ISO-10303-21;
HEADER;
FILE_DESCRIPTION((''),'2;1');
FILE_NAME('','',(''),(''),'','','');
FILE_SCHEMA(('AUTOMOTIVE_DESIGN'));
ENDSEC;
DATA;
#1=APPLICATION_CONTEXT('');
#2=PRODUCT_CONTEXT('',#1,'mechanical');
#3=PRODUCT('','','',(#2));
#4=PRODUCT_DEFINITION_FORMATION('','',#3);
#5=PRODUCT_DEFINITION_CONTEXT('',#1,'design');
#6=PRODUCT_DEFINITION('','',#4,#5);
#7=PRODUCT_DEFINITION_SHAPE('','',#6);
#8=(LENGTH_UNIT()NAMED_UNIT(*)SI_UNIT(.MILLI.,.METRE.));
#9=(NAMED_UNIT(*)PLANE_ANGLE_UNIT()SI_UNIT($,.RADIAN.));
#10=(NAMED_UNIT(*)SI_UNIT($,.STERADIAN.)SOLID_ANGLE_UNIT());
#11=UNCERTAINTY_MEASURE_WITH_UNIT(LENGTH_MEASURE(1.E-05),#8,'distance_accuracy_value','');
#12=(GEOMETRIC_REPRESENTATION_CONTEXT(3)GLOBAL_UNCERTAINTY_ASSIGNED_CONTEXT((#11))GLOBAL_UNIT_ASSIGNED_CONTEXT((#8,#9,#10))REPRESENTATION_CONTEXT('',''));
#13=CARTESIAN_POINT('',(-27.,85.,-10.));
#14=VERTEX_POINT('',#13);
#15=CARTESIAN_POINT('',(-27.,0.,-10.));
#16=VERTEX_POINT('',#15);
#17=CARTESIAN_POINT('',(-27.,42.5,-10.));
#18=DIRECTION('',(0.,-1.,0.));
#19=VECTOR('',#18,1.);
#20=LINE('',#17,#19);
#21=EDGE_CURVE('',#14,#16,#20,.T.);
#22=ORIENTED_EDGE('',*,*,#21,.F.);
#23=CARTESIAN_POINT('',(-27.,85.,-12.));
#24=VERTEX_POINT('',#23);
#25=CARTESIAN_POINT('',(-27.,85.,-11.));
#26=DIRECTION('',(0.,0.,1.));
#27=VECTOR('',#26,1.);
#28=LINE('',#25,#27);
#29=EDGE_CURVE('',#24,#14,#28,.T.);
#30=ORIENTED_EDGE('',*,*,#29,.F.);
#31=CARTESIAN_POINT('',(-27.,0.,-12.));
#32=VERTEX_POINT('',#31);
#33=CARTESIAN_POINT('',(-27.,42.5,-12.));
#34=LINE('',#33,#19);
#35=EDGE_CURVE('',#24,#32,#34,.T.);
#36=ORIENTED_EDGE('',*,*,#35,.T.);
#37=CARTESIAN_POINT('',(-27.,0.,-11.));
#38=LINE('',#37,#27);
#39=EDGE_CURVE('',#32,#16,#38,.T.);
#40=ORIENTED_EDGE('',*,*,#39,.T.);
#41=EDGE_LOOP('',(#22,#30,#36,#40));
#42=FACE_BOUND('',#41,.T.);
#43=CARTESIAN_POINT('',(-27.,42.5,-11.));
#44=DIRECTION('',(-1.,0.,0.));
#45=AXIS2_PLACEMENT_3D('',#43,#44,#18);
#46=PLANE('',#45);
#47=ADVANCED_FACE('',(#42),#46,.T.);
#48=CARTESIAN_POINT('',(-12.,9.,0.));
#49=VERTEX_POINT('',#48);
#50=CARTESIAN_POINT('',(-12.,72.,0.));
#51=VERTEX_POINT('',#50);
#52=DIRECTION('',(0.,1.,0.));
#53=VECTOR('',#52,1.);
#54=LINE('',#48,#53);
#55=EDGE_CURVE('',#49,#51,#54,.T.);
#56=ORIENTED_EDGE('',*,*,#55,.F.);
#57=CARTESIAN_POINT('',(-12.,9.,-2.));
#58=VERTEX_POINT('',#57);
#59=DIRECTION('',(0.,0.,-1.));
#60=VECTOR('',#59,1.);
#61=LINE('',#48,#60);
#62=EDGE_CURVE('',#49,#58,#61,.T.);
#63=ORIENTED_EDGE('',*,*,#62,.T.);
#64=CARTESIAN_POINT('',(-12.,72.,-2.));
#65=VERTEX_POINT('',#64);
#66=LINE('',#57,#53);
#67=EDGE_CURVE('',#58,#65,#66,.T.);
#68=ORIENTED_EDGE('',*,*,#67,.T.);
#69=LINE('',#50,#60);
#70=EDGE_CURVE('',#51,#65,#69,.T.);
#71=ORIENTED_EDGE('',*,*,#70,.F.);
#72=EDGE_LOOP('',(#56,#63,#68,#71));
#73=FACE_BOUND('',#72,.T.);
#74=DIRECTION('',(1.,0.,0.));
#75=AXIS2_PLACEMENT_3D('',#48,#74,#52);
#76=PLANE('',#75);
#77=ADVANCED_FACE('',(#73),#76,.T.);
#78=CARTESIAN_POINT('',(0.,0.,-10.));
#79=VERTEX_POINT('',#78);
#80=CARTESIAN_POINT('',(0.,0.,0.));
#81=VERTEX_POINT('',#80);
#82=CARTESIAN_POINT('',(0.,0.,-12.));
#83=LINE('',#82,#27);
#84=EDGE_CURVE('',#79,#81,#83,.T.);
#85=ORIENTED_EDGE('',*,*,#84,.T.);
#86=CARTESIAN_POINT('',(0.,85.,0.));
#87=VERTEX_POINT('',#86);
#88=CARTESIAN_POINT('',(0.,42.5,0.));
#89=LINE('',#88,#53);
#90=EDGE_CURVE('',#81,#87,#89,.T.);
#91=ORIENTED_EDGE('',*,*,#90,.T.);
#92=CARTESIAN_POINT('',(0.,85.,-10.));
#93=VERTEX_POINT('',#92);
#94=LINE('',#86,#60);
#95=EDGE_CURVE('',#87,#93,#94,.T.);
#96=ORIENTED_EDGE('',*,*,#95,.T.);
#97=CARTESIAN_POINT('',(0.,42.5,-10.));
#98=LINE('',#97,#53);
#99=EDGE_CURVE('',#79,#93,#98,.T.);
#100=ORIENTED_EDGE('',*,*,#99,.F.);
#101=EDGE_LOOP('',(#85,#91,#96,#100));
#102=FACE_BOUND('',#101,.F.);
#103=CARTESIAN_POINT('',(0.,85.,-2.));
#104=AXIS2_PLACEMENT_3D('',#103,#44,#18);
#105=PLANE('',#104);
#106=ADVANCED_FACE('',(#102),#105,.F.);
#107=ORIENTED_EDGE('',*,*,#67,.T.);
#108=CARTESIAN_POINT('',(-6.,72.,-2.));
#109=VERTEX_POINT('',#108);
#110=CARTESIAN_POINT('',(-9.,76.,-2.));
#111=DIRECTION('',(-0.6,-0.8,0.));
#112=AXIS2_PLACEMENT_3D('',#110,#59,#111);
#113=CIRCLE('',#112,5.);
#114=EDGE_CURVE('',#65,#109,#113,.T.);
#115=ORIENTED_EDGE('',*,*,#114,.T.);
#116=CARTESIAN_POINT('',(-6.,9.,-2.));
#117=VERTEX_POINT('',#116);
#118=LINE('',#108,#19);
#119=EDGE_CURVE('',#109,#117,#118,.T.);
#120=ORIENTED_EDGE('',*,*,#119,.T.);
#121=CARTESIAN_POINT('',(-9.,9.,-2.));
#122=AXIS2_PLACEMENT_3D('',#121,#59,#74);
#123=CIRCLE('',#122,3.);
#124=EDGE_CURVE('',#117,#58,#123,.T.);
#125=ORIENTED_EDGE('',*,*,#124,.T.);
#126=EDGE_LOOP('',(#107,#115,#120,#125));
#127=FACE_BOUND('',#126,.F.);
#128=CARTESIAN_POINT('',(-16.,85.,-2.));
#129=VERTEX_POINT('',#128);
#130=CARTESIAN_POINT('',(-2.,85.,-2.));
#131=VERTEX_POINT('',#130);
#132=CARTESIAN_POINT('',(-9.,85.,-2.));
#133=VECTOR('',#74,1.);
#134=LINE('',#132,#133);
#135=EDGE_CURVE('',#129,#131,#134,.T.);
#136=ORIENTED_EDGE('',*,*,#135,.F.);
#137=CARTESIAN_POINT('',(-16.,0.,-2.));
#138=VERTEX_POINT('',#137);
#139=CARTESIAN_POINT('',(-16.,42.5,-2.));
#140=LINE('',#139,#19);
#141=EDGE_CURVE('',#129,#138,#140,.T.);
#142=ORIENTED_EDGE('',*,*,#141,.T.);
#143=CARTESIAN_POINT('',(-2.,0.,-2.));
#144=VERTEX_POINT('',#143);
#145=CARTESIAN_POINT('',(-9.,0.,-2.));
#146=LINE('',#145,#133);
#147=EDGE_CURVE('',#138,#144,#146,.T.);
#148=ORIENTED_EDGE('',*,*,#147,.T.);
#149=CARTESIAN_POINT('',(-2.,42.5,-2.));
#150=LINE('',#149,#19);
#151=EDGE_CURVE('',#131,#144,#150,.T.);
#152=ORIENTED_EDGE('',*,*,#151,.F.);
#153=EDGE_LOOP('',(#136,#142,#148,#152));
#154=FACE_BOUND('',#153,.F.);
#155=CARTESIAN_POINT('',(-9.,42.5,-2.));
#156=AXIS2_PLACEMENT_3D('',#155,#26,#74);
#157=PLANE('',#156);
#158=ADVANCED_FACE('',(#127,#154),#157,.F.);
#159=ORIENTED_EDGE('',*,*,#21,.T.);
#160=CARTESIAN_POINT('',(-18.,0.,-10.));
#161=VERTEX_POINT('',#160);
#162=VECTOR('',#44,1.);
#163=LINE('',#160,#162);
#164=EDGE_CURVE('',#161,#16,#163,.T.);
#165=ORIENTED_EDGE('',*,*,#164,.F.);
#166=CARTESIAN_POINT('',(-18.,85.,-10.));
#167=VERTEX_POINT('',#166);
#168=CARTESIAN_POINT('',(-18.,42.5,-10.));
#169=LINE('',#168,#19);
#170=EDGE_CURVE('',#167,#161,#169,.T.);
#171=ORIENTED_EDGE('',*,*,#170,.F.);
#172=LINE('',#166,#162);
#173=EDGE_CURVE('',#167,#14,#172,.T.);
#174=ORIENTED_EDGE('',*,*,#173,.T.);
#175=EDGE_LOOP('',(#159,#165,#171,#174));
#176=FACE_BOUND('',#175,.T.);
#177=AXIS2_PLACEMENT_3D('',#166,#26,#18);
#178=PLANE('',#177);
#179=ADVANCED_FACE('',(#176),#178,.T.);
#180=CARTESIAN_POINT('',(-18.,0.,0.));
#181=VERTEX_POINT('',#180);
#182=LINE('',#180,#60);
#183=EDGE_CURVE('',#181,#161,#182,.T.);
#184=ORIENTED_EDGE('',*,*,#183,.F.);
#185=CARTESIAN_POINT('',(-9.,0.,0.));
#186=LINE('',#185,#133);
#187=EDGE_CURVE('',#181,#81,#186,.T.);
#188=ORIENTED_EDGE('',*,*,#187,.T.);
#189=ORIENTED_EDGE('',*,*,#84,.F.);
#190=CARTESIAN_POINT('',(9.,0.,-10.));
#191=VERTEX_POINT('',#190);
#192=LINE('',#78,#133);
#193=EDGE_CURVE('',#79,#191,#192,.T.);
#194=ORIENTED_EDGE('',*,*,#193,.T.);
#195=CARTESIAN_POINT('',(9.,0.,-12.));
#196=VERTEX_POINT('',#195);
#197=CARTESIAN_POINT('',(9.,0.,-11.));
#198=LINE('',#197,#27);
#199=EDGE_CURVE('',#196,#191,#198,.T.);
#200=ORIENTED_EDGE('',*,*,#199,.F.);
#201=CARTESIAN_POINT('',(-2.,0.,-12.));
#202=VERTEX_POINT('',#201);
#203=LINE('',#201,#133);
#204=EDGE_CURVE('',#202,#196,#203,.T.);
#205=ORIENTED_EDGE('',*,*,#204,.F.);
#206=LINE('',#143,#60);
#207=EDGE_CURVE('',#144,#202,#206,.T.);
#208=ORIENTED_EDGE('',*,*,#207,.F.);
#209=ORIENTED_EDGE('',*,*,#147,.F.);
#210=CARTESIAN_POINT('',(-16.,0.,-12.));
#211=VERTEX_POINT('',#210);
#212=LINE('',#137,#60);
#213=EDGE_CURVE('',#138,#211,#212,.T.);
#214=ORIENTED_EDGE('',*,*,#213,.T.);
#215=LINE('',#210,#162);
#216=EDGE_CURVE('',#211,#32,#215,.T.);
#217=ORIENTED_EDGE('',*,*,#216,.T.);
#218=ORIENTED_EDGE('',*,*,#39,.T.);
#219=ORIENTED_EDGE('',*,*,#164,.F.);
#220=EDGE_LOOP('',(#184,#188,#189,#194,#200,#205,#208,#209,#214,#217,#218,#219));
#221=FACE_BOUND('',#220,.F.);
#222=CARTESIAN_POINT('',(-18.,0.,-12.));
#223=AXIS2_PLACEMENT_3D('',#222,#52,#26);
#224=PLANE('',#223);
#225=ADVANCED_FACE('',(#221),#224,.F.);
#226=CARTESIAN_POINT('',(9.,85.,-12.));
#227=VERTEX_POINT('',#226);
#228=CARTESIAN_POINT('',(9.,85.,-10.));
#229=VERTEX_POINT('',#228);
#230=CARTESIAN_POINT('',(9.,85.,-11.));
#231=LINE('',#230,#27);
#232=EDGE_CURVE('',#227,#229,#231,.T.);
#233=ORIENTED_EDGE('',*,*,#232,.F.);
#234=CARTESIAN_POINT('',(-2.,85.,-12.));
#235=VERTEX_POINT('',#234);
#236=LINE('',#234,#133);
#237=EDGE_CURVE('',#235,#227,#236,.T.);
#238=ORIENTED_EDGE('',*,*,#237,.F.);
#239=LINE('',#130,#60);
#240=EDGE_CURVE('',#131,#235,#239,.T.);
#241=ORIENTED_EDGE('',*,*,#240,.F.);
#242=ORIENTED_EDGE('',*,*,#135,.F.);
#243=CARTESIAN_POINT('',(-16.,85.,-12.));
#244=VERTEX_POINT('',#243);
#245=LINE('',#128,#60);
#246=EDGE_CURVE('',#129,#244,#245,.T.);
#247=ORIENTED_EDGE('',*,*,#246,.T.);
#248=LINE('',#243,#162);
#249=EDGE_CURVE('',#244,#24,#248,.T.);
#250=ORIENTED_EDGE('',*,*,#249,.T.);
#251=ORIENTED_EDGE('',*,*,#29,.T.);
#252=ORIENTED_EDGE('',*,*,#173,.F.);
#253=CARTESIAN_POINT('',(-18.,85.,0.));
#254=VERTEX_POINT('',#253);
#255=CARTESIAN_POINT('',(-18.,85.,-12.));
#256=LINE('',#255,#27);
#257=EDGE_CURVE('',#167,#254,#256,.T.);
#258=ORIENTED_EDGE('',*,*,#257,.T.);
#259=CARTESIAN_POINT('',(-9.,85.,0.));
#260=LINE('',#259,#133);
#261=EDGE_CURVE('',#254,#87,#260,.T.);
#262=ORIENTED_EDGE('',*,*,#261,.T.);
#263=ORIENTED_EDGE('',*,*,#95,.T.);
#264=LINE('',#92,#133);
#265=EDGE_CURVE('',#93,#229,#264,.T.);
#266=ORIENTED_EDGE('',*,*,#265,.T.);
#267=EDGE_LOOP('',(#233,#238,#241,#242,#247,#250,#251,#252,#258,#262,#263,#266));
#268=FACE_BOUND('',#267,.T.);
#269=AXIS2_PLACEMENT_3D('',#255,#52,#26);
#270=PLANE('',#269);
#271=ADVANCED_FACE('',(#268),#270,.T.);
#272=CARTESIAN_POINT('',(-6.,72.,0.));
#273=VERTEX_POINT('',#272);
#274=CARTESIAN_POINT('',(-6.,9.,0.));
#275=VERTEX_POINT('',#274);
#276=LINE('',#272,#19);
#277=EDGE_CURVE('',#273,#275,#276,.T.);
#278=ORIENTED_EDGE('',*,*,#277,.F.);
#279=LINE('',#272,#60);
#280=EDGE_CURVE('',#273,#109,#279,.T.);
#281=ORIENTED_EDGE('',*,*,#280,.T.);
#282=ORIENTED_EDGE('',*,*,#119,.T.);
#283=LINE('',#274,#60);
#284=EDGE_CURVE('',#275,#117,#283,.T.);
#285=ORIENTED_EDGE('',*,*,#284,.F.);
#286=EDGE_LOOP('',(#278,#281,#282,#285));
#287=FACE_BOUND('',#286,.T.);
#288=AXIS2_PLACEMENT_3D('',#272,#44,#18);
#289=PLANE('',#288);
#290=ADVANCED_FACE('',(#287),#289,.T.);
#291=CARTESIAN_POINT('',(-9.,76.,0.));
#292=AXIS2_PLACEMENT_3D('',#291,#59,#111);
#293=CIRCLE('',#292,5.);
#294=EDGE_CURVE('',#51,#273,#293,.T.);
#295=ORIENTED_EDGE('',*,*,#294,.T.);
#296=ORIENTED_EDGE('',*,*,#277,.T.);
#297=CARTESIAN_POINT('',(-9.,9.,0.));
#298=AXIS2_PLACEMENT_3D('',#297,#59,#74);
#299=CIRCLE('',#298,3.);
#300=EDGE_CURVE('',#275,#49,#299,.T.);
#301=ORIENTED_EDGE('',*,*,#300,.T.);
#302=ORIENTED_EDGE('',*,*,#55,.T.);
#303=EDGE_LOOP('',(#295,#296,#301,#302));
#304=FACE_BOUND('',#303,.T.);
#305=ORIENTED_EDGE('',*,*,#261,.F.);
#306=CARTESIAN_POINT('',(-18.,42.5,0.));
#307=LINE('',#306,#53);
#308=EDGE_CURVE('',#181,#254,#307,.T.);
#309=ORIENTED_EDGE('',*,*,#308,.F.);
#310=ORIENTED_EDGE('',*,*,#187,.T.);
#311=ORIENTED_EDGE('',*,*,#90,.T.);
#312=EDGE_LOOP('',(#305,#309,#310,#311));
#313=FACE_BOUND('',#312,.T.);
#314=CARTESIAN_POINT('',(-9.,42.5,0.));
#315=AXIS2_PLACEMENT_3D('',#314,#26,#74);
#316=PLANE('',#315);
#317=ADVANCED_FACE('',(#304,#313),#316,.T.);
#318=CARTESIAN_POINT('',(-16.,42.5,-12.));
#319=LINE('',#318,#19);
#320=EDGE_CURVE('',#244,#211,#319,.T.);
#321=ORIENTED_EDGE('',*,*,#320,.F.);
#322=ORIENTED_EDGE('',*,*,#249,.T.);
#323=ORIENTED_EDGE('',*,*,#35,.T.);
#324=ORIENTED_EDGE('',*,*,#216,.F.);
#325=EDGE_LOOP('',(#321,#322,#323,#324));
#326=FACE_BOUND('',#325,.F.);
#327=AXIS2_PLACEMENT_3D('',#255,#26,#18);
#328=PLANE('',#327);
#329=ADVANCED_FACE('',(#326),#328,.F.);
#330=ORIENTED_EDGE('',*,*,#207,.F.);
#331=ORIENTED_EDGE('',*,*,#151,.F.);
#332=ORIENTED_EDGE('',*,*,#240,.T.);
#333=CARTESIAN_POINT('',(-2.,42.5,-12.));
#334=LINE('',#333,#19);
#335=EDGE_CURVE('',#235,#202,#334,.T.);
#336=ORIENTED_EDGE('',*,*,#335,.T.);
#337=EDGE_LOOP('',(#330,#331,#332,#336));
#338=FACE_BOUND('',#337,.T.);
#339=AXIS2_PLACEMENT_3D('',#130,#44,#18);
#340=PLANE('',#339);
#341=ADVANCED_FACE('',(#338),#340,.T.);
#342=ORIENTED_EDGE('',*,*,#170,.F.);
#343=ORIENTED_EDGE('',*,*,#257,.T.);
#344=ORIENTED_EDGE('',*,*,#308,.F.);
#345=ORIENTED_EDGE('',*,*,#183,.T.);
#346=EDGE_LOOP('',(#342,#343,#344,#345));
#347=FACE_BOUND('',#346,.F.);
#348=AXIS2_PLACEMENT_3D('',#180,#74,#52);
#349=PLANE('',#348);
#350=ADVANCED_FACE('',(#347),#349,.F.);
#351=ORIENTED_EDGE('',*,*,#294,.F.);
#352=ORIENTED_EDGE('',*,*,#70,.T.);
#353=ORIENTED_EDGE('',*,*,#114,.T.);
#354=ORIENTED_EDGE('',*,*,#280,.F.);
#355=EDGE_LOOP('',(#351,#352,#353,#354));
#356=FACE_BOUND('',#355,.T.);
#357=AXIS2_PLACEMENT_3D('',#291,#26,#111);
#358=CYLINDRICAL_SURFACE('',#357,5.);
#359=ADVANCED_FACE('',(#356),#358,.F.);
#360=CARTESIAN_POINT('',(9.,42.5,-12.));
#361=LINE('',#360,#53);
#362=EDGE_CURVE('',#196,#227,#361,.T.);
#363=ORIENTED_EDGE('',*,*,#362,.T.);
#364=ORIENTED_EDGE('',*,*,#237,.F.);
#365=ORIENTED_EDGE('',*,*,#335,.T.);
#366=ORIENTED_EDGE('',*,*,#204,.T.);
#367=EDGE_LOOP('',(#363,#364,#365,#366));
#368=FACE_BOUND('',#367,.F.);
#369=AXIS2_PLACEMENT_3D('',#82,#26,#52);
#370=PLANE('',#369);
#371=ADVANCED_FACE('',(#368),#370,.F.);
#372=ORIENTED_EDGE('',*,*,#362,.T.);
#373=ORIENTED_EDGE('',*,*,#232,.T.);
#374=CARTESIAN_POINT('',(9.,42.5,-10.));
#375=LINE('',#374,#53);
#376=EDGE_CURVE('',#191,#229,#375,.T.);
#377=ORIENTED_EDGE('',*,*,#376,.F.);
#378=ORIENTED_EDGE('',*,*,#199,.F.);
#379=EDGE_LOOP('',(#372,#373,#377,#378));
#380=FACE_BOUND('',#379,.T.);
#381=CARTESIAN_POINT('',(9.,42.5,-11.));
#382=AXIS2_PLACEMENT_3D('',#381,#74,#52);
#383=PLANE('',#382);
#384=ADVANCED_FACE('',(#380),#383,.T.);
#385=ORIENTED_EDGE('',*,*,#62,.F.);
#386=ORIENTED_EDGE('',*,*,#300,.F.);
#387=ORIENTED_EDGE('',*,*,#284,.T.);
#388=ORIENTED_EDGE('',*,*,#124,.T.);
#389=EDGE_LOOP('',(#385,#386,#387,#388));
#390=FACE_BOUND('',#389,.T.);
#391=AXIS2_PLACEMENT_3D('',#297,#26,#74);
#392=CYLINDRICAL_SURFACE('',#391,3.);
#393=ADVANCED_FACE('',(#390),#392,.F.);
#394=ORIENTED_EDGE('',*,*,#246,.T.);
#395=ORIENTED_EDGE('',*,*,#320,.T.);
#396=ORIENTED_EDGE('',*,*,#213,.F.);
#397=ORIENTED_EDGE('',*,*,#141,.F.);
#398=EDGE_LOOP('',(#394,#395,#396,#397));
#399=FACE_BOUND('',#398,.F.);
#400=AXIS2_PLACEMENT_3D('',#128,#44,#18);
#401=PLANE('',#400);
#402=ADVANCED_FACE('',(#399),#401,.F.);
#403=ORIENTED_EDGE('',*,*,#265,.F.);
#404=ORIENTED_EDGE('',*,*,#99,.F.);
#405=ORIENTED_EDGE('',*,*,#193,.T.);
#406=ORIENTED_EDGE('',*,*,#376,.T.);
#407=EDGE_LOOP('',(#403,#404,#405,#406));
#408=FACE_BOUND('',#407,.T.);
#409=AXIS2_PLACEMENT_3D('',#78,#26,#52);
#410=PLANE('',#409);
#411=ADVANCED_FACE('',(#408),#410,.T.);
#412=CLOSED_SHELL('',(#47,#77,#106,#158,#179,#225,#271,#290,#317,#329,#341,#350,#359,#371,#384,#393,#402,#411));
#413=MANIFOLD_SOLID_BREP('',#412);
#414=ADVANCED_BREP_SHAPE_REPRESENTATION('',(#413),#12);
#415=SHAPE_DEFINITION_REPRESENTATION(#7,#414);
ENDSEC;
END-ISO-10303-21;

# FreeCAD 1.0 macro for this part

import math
import FreeCAD as App
import Part
import Sketcher

V = App.Vector
Q = App.Units.Quantity

doc = App.newDocument("Part")
body = doc.addObject("PartDesign::Body", "Body")

# Sketch on XY plane
sketch1 = body.newObject("Sketcher::SketchObject", "Sketch")
sketch1.AttachmentSupport = (doc.getObject("XY_Plane"), [""])
sketch1.MapMode = "FlatFace"
sketch1.addGeometry([
    Part.LineSegment(V(-18, 85, 0), V(-18, 0, 0)),  # 0
    Part.LineSegment(V(-18, 0, 0), V(0, 0, 0)),  # 1
    Part.LineSegment(V(0, 0, 0), V(0, 85, 0)),  # 2
    Part.LineSegment(V(0, 85, 0), V(-18, 85, 0)),  # 3
    Part.LineSegment(V(-12, 9, 0), V(-12, 72, 0)),  # 4
    Part.ArcOfCircle(Part.Circle(V(-9, 76, 0), V(0, 0, 1), 5), math.radians(-53), math.radians(233)),  # 5
    Part.LineSegment(V(-6, 72, 0), V(-6, 9, 0)),  # 6
    Part.ArcOfCircle(Part.Circle(V(-9, 9, 0), V(0, 0, 1), 3), math.radians(180), math.radians(360)),  # 7
], False)
sketch1.addConstraint([
    Sketcher.Constraint("Coincident", 0, 2, 1, 1),
    Sketcher.Constraint("Coincident", 1, 2, 2, 1),
    Sketcher.Constraint("Coincident", 2, 2, 3, 1),
    Sketcher.Constraint("Coincident", 3, 2, 0, 1),
    Sketcher.Constraint("Coincident", 4, 2, 5, 2),
    Sketcher.Constraint("Coincident", 5, 1, 6, 1),
    Sketcher.Constraint("Tangent", 6, 2, 7, 2),
    Sketcher.Constraint("Tangent", 7, 1, 4, 1),
    Sketcher.Constraint("Vertical", 0),
    Sketcher.Constraint("Horizontal", 1),
    Sketcher.Constraint("Vertical", 2),
    Sketcher.Constraint("Horizontal", 3),
    Sketcher.Constraint("Vertical", 4),
    Sketcher.Constraint("Vertical", 6),
    Sketcher.Constraint("Coincident", 1, 2, -1, 1),
    Sketcher.Constraint("Horizontal", 4, 2, 5, 1),
    Sketcher.Constraint("Radius", 5, Q("5 mm")),
    Sketcher.Constraint("Radius", 7, Q("3 mm")),
    Sketcher.Constraint("DistanceX", 1, 1, 1, 2, Q("18 mm")),
    Sketcher.Constraint("DistanceY", 0, 2, 0, 1, Q("85 mm")),
    Sketcher.Constraint("DistanceY", 4, 1, 4, 2, Q("63 mm")),
    Sketcher.Constraint("DistanceX", 5, 3, -1, 1, Q("9 mm")),
    Sketcher.Constraint("DistanceY", -1, 1, 5, 3, Q("76 mm")),
])
pad1 = body.newObject("PartDesign::Pad", "Pad")
pad1.Profile = sketch1
pad1.Length = 2
pad1.Reversed = True

# Sketch on XY plane
sketch2 = body.newObject("Sketcher::SketchObject", "Sketch001")
sketch2.AttachmentSupport = (doc.getObject("XY_Plane"), [""])
sketch2.MapMode = "FlatFace"
sketch2.AttachmentOffset = App.Placement(V(0, 0, -2), App.Rotation())
sketch2.addGeometry([
    Part.LineSegment(V(-2, 0, 0), V(-2, 85, 0)),  # 0
    Part.LineSegment(V(-2, 85, 0), V(0, 85, 0)),  # 1
    Part.LineSegment(V(0, 85, 0), V(0, 0, 0)),  # 2
    Part.LineSegment(V(0, 0, 0), V(-2, 0, 0)),  # 3
    Part.LineSegment(V(-18, 0, 0), V(-18, 85, 0)),  # 4
    Part.LineSegment(V(-18, 85, 0), V(-16, 85, 0)),  # 5
    Part.LineSegment(V(-16, 85, 0), V(-16, 0, 0)),  # 6
    Part.LineSegment(V(-16, 0, 0), V(-18, 0, 0)),  # 7
], False)
sketch2.addConstraint([
    Sketcher.Constraint("Coincident", 0, 2, 1, 1),
    Sketcher.Constraint("Coincident", 1, 2, 2, 1),
    Sketcher.Constraint("Coincident", 2, 2, 3, 1),
    Sketcher.Constraint("Coincident", 3, 2, 0, 1),
    Sketcher.Constraint("Coincident", 4, 2, 5, 1),
    Sketcher.Constraint("Coincident", 5, 2, 6, 1),
    Sketcher.Constraint("Coincident", 6, 2, 7, 1),
    Sketcher.Constraint("Coincident", 7, 2, 4, 1),
    Sketcher.Constraint("Vertical", 0),
    Sketcher.Constraint("Horizontal", 1),
    Sketcher.Constraint("Vertical", 2),
    Sketcher.Constraint("Horizontal", 3),
    Sketcher.Constraint("Vertical", 4),
    Sketcher.Constraint("Horizontal", 5),
    Sketcher.Constraint("Vertical", 6),
    Sketcher.Constraint("Horizontal", 7),
    Sketcher.Constraint("Coincident", 2, 2, -1, 1),
    Sketcher.Constraint("PointOnObject", 6, 2, -1),
    Sketcher.Constraint("Horizontal", 1, 2, 4, 2),
    Sketcher.Constraint("Equal", 3, 5),
    Sketcher.Constraint("DistanceX", 1, 1, 1, 2, Q("2 mm")),
    Sketcher.Constraint("DistanceY", 0, 1, 0, 2, Q("85 mm")),
    Sketcher.Constraint("DistanceX", 4, 2, -1, 1, Q("18 mm")),
])
pad2 = body.newObject("PartDesign::Pad", "Pad001")
pad2.Profile = sketch2
pad2.Length = 10
pad2.Reversed = True

# Sketch on YZ plane
sketch3 = body.newObject("Sketcher::SketchObject", "Sketch002")
sketch3.AttachmentSupport = (doc.getObject("YZ_Plane"), [""])
sketch3.MapMode = "FlatFace"
sketch3.addGeometry([
    Part.LineSegment(V(0, -10, 0), V(0, -12, 0)),
    Part.LineSegment(V(0, -12, 0), V(85, -12, 0)),
    Part.LineSegment(V(85, -12, 0), V(85, -10, 0)),
    Part.LineSegment(V(85, -10, 0), V(0, -10, 0)),
], False)
sketch3.addConstraint([
    Sketcher.Constraint("Coincident", 0, 2, 1, 1),
    Sketcher.Constraint("Coincident", 1, 2, 2, 1),
    Sketcher.Constraint("Coincident", 2, 2, 3, 1),
    Sketcher.Constraint("Coincident", 3, 2, 0, 1),
    Sketcher.Constraint("Vertical", 0),
    Sketcher.Constraint("Horizontal", 1),
    Sketcher.Constraint("Vertical", 2),
    Sketcher.Constraint("Horizontal", 3),
    Sketcher.Constraint("PointOnObject", 0, 2, -2),
    Sketcher.Constraint("DistanceX", 1, 1, 1, 2, Q("85 mm")),
    Sketcher.Constraint("DistanceY", 0, 2, 0, 1, Q("2 mm")),
    Sketcher.Constraint("DistanceY", 0, 2, -1, 1, Q("12 mm")),
])
pad3 = body.newObject("PartDesign::Pad", "Pad002")
pad3.Profile = sketch3
pad3.Length = 9

# Sketch on YZ plane
sketch4 = body.newObject("Sketcher::SketchObject", "Sketch003")
sketch4.AttachmentSupport = (doc.getObject("YZ_Plane"), [""])
sketch4.MapMode = "FlatFace"
sketch4.AttachmentOffset = App.Placement(V(0, 0, -18), App.Rotation())
sketch4.addGeometry([
    Part.LineSegment(V(85, -10, 0), V(85, -12, 0)),
    Part.LineSegment(V(85, -12, 0), V(0, -12, 0)),
    Part.LineSegment(V(0, -12, 0), V(0, -10, 0)),
    Part.LineSegment(V(0, -10, 0), V(85, -10, 0)),
], False)
sketch4.addConstraint([
    Sketcher.Constraint("Coincident", 0, 2, 1, 1),
    Sketcher.Constraint("Coincident", 1, 2, 2, 1),
    Sketcher.Constraint("Coincident", 2, 2, 3, 1),
    Sketcher.Constraint("Coincident", 3, 2, 0, 1),
    Sketcher.Constraint("Vertical", 0),
    Sketcher.Constraint("Horizontal", 1),
    Sketcher.Constraint("Vertical", 2),
    Sketcher.Constraint("Horizontal", 3),
    Sketcher.Constraint("PointOnObject", 1, 2, -2),
    Sketcher.Constraint("DistanceX", 1, 2, 1, 1, Q("85 mm")),
    Sketcher.Constraint("DistanceY", 0, 2, 0, 1, Q("2 mm")),
    Sketcher.Constraint("DistanceY", 0, 2, -1, 1, Q("12 mm")),
])
pad4 = body.newObject("PartDesign::Pad", "Pad003")
pad4.Profile = sketch4
pad4.Length = 9
pad4.Reversed = True

doc.recompute()
